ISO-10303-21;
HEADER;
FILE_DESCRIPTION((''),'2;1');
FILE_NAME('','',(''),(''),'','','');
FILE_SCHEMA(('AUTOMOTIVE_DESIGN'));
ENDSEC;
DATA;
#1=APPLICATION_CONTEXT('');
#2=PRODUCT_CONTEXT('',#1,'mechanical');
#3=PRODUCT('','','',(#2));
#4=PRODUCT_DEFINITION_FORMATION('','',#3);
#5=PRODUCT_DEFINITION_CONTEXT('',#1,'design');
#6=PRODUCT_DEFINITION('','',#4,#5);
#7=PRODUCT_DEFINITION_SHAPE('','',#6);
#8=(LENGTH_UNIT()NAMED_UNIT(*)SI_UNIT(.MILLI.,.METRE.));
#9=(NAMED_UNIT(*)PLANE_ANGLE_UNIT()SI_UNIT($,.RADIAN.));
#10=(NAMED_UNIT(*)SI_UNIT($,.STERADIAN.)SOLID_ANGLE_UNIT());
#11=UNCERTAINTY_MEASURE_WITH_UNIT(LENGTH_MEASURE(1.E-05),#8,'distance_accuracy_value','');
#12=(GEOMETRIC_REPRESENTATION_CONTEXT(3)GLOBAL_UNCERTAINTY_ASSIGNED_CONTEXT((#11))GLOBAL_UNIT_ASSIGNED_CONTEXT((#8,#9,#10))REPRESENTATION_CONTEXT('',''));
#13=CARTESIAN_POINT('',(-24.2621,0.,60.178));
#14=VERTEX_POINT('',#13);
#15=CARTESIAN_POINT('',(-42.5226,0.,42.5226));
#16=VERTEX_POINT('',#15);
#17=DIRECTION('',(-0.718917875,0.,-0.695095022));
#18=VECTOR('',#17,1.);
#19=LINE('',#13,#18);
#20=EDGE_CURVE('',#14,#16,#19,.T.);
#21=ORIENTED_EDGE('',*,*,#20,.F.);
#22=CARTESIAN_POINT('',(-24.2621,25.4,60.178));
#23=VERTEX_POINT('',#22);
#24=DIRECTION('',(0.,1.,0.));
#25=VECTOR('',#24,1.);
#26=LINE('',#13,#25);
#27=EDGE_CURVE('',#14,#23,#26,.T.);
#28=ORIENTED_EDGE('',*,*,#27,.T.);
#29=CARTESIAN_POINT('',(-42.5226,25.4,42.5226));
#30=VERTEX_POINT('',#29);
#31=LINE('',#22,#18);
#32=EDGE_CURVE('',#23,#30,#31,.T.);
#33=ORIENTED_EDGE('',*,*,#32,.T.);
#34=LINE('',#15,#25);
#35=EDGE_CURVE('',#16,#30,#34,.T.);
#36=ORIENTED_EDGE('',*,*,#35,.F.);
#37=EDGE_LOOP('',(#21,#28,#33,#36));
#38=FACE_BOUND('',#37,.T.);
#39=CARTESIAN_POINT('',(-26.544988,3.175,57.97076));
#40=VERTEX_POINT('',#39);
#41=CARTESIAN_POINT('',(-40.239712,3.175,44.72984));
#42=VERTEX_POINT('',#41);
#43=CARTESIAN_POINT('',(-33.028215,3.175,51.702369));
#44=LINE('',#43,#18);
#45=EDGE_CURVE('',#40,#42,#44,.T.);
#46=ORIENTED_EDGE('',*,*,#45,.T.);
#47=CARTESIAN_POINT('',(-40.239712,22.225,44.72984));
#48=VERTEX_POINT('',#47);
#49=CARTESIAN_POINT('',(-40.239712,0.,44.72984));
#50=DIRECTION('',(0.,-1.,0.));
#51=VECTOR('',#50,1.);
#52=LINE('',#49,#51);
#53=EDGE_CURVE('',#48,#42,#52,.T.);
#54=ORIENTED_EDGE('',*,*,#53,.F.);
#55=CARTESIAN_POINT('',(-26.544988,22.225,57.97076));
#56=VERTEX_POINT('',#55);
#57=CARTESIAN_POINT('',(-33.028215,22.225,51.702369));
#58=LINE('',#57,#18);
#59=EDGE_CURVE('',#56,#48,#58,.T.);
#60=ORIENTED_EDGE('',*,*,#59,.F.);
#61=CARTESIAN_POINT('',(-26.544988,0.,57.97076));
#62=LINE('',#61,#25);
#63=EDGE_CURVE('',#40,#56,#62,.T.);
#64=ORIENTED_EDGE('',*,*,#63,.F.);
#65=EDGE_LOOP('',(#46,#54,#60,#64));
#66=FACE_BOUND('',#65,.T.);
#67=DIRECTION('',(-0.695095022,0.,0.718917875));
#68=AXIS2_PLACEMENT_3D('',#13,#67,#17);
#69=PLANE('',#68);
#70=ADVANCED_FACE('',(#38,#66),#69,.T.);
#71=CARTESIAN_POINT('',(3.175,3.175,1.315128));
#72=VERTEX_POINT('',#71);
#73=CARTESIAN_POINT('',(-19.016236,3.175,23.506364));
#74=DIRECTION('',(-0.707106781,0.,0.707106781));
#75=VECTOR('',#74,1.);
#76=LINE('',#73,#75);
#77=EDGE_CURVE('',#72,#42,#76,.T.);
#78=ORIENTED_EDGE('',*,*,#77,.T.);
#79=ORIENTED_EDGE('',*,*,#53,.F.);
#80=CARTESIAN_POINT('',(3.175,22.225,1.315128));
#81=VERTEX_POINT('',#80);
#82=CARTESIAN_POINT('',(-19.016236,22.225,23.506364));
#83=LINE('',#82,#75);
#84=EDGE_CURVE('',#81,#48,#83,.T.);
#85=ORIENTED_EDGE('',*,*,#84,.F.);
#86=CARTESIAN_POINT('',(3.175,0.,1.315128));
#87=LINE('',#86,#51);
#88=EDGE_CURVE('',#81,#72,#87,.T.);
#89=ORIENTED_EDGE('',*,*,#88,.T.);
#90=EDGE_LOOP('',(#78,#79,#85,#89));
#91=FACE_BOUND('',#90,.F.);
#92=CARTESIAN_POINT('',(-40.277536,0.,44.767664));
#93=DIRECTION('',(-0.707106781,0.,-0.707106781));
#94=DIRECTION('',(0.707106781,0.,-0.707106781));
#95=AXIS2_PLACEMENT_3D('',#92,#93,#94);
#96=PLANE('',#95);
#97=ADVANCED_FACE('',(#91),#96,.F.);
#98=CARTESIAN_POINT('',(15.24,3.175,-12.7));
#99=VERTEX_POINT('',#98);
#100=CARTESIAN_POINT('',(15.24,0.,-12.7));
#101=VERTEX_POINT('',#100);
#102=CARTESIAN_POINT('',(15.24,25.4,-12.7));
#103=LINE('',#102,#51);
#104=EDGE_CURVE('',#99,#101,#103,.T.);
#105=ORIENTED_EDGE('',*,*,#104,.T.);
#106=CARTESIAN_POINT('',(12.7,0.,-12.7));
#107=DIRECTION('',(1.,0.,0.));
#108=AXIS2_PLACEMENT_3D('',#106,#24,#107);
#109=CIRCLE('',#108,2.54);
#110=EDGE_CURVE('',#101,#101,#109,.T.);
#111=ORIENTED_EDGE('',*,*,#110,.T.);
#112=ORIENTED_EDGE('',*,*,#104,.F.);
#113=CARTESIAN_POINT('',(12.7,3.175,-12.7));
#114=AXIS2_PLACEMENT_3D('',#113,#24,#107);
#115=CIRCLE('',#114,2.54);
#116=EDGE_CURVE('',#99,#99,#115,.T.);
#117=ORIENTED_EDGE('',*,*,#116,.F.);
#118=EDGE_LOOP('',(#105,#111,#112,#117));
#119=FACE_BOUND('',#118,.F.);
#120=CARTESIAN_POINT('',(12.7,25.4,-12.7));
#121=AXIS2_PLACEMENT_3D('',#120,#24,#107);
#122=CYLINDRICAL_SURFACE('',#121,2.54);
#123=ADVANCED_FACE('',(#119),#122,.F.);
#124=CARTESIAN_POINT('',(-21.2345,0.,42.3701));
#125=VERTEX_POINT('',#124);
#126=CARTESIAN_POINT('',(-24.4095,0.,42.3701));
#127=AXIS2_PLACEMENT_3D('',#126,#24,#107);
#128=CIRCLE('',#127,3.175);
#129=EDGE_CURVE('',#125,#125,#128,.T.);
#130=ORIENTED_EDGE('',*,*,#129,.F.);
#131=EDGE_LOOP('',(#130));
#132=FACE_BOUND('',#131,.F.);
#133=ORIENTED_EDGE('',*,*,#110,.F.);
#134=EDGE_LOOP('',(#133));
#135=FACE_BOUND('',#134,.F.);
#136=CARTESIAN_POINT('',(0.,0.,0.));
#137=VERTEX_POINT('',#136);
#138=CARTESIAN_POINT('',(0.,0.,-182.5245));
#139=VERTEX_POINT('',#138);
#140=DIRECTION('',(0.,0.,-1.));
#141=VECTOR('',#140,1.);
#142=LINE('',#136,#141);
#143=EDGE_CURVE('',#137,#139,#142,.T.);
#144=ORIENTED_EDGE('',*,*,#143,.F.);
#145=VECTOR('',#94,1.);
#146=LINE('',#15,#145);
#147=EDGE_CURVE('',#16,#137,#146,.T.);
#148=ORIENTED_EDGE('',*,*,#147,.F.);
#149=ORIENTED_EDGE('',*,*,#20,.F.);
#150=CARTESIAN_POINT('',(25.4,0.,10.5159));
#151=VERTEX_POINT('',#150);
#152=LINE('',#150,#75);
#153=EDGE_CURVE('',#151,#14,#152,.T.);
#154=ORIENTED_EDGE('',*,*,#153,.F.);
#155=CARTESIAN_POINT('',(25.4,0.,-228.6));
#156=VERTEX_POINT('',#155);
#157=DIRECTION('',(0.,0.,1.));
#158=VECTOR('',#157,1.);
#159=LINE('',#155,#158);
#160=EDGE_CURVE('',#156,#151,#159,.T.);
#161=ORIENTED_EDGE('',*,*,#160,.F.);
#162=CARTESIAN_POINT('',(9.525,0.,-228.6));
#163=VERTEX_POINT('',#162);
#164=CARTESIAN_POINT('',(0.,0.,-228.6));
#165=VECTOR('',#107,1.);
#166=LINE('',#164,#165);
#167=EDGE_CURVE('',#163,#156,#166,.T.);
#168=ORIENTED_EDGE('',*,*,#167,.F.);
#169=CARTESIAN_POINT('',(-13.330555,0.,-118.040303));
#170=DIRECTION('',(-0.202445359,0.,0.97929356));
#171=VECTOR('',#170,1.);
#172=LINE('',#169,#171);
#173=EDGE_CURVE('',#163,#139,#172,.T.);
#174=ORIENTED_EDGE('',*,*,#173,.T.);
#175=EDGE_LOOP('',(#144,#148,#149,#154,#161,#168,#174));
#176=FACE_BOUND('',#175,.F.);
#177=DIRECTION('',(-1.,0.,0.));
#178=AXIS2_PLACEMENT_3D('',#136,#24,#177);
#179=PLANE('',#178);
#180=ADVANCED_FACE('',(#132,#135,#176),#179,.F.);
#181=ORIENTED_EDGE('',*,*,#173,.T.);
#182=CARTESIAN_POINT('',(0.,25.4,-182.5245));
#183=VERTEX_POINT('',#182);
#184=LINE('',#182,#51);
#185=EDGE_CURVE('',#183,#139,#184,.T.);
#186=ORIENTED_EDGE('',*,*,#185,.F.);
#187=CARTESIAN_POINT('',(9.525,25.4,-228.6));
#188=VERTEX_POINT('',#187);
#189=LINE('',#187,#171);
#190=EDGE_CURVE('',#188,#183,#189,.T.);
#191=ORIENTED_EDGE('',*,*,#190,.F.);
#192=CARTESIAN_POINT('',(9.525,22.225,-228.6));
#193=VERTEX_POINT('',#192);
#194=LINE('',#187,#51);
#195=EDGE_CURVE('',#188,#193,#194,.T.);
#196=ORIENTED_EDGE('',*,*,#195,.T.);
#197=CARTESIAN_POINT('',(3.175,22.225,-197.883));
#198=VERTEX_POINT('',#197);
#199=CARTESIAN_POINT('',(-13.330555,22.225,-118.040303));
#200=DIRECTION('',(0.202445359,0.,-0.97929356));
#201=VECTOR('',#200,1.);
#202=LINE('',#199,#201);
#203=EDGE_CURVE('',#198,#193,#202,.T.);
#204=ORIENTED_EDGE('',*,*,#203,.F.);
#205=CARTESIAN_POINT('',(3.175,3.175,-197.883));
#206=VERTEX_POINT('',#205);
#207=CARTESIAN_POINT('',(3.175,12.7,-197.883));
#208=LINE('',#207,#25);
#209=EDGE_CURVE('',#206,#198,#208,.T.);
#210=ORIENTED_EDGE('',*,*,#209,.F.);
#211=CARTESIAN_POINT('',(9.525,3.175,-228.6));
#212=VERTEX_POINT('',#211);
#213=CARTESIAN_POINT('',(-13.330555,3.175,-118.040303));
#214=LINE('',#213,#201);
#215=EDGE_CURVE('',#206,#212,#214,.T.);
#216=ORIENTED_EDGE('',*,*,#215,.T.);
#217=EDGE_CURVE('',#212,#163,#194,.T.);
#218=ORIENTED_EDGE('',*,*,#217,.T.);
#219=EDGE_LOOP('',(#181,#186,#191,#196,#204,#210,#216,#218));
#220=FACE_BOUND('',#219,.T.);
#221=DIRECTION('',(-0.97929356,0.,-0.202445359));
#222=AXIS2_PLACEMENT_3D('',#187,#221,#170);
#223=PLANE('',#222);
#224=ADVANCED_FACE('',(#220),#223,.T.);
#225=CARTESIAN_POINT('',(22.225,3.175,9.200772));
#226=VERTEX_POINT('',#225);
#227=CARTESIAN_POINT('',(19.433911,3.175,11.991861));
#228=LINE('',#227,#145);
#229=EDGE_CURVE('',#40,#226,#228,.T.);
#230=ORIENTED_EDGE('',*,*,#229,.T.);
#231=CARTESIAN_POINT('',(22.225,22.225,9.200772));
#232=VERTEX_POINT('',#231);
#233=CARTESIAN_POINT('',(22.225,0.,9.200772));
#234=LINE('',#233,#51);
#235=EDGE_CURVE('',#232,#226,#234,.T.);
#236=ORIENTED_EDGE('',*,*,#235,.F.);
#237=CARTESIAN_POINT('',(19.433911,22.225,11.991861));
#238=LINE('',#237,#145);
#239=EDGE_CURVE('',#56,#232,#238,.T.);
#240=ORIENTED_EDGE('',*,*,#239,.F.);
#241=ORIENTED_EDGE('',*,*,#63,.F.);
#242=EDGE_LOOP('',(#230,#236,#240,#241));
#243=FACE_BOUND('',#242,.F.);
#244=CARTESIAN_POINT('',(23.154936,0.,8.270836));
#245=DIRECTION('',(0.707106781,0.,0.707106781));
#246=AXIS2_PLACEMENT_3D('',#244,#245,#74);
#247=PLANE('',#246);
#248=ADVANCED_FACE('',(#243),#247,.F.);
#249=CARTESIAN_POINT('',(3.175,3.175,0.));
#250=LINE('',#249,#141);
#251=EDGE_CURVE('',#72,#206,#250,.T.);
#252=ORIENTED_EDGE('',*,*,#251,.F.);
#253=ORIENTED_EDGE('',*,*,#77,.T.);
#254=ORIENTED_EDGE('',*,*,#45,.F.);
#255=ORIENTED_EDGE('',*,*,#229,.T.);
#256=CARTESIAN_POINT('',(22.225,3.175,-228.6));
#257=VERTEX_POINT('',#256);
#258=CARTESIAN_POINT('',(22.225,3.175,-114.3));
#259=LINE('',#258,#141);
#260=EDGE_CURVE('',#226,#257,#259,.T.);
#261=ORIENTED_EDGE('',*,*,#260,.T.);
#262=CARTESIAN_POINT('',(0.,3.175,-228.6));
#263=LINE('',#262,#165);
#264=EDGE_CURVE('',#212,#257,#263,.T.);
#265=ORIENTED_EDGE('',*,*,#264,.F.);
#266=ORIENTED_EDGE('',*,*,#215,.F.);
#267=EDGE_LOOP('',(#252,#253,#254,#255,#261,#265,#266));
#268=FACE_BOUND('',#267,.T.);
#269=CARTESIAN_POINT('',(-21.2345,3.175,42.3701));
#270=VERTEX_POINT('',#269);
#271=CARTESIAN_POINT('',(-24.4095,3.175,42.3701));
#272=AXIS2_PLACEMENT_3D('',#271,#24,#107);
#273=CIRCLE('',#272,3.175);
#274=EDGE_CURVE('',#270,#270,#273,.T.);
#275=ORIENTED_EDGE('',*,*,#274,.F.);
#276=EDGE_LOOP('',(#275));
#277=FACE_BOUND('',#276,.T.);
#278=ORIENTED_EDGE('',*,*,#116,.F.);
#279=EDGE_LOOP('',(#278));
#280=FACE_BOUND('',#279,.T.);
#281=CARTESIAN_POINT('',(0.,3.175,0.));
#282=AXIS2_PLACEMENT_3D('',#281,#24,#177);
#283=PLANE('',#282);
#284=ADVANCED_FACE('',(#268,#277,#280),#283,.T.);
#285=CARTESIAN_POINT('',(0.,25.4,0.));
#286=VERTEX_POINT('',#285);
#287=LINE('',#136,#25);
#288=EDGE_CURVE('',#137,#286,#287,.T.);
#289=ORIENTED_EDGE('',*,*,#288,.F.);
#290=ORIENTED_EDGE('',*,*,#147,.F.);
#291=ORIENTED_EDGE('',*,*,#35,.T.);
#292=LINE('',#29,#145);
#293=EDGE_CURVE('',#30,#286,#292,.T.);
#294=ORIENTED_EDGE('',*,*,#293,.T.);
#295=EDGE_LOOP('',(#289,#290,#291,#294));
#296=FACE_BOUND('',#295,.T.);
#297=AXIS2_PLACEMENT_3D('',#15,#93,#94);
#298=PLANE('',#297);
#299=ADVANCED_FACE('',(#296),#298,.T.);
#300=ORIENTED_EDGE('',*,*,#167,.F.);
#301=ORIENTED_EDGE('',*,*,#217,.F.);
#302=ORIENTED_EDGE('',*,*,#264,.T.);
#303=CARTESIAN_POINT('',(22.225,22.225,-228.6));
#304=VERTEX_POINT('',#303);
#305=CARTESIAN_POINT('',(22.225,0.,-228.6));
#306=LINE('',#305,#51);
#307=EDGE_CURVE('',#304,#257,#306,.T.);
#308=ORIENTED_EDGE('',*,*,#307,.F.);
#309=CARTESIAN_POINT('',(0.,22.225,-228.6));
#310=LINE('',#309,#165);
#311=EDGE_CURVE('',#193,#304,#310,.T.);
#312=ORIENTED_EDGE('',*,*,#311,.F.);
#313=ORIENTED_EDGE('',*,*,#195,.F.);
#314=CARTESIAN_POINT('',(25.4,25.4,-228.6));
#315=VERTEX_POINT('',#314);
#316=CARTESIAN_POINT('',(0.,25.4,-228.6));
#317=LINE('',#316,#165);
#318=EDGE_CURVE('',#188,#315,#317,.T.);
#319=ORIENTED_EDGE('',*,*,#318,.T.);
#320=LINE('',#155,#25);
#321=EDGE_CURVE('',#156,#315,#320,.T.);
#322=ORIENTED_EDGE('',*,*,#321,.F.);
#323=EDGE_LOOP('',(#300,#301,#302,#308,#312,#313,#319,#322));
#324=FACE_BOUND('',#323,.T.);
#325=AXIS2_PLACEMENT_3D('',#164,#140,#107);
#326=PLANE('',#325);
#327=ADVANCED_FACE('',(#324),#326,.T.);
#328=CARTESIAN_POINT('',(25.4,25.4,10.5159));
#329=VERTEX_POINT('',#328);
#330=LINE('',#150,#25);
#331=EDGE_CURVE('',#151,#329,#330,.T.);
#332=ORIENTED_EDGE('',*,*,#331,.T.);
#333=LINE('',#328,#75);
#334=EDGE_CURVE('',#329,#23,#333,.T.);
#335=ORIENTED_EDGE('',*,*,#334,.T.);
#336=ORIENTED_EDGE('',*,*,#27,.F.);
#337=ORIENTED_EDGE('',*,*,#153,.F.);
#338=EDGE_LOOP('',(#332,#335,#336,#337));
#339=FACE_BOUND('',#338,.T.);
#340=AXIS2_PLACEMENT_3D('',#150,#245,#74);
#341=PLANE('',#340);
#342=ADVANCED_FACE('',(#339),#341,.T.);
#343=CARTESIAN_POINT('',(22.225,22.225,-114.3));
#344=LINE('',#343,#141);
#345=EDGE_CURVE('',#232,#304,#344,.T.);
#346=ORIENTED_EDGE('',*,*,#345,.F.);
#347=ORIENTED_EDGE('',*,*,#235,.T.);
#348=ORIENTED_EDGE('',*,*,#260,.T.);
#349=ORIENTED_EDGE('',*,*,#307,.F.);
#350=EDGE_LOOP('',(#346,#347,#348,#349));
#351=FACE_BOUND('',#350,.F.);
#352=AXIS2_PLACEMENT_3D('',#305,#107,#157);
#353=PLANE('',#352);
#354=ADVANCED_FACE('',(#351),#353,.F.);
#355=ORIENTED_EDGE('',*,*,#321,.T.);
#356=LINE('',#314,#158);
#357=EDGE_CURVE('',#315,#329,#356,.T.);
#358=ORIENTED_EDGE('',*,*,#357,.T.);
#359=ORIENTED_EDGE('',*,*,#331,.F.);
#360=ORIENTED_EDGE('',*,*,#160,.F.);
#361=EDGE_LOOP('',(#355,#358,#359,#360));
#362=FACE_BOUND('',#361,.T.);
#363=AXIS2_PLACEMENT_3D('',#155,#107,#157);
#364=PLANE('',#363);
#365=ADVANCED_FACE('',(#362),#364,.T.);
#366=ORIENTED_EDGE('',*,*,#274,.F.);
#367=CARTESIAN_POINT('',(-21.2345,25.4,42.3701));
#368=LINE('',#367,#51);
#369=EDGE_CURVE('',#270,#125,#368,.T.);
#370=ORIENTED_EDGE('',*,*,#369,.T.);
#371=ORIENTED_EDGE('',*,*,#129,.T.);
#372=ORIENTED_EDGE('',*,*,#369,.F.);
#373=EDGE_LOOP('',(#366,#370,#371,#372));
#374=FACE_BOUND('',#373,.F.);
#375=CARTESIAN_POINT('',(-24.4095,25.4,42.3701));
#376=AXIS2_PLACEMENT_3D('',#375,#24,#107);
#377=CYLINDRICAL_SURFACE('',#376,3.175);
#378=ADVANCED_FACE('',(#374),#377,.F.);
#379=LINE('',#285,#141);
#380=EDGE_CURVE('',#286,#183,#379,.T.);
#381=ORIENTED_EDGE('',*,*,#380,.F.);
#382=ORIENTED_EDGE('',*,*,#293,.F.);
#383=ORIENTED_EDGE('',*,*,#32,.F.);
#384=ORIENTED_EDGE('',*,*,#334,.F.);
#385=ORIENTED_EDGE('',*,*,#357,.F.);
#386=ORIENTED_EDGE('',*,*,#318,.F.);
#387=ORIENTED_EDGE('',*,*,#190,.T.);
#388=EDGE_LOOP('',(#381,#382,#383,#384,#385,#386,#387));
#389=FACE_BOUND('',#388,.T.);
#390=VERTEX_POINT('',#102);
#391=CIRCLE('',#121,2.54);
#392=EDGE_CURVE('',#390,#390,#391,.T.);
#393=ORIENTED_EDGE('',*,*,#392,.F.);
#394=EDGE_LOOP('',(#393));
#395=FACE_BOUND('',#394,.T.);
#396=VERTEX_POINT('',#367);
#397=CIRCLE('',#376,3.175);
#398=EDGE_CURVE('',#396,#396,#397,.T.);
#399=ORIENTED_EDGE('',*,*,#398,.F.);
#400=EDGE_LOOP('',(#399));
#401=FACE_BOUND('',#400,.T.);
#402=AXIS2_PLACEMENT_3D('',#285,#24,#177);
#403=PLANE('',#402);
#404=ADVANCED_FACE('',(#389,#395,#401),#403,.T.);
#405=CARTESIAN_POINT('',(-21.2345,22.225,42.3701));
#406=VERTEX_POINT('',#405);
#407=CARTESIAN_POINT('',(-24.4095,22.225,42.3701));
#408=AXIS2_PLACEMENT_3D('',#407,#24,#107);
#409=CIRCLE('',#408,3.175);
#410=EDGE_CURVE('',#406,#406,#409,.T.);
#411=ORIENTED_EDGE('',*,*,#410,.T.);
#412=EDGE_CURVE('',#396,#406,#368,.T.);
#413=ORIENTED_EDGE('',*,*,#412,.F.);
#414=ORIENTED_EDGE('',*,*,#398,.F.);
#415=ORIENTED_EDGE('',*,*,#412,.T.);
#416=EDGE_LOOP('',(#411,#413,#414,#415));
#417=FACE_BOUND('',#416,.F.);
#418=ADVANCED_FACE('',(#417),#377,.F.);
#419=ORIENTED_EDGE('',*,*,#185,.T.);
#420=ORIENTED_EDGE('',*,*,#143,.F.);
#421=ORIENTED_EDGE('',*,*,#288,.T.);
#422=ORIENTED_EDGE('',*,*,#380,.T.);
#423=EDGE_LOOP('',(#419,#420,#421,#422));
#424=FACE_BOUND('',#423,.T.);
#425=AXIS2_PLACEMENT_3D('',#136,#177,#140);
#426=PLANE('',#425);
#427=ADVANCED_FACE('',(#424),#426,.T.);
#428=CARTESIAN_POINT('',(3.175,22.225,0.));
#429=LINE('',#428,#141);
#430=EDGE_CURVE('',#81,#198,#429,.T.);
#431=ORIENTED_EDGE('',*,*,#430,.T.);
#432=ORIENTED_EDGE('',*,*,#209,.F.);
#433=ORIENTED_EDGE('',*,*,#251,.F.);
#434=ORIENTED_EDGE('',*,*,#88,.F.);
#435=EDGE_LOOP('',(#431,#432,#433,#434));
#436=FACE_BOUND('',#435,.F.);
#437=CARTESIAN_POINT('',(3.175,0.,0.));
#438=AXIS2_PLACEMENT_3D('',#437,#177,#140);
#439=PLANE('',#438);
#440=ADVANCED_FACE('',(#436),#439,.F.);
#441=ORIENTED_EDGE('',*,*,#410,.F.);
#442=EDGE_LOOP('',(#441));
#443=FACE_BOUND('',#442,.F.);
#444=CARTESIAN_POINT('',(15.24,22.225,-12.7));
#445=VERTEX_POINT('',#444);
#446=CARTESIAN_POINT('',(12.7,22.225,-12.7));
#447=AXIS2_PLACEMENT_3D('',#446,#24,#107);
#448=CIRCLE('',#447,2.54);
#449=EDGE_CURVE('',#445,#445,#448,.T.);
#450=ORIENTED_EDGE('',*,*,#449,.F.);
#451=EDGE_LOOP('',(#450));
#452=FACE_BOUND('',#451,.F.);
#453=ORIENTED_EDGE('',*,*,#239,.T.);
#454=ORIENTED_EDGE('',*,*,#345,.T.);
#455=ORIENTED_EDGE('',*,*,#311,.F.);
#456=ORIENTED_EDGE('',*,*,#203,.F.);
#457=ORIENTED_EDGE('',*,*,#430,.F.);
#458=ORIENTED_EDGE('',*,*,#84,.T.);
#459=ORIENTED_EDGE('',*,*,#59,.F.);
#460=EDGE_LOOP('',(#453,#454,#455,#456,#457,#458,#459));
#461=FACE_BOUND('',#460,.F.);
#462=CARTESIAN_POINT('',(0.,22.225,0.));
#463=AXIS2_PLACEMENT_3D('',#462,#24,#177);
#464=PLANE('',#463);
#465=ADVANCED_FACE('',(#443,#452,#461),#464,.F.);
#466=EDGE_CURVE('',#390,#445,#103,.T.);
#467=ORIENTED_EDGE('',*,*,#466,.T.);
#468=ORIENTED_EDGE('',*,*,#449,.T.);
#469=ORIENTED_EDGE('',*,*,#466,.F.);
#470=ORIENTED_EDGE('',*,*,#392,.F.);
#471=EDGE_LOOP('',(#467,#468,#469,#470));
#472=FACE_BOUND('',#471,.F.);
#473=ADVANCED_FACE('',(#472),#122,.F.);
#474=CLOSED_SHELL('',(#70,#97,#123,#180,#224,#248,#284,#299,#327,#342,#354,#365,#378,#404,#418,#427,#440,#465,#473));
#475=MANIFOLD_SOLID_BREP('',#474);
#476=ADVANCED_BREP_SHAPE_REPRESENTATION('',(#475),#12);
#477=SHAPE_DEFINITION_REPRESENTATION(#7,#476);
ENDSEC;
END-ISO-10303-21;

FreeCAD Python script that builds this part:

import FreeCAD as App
import Part
import Sketcher
from FreeCAD import Vector
Q = App.Units.Quantity


def faces_at(feature, points):
    """Names of the faces that lie closest to the given points."""
    faces = feature.Shape.Faces
    near = lambda p: min(range(len(faces)), key=lambda i: faces[i].distToShape(Part.Vertex(*p))[0])
    return sorted({f"Face{near(p) + 1}" for p in points})


def add_polygon(sketch, points):
    """Adds a closed chain of lines whose ends are joined by coincident constraints."""
    first, n = sketch.GeometryCount, len(points)
    for a, b in zip(points, points[1:] + points[:1]):
        sketch.addGeometry(Part.LineSegment(App.Vector(*a, 0), App.Vector(*b, 0)), False)
    for i in range(n):
        sketch.addConstraint(Sketcher.Constraint("Coincident", first + i, 2, first + (i + 1) % n, 1))

doc = App.newDocument("Part")
body = doc.addObject("PartDesign::Body", "Body")

# Sketch on XZ plane
sketch1 = doc.addObject("Sketcher::SketchObject", "Sketch")
body.addObject(sketch1)
sketch1.AttachmentSupport = (doc.XZ_Plane, [""])
sketch1.MapMode = "FlatFace"
add_polygon(sketch1, [(0, -228.6), (0, 0), (-42.5226, 42.5226), (-24.2621, 60.178), (25.4, 10.5159), (25.4, -228.6)])  # lines 0-5
sketch1.addConstraint(Sketcher.Constraint("Vertical", 0))
sketch1.addConstraint(Sketcher.Constraint("Vertical", 4))
sketch1.addConstraint(Sketcher.Constraint("Horizontal", 5))
sketch1.addConstraint(Sketcher.Constraint("Coincident", 0, 2, -1, 1))
sketch1.addConstraint(Sketcher.Constraint("DistanceX", 5, 2, 5, 1, Q("1 in")))
sketch1.addConstraint(Sketcher.Constraint("DistanceY", 0, 1, 0, 2, Q("9 in")))
sketch1.addConstraint(Sketcher.Constraint("Distance", 2, Q("1 in")))
sketch1.addConstraint(Sketcher.Constraint("DistanceY", 4, 2, 4, 1, Q("9.414 in")))
sketch1.addConstraint(Sketcher.Constraint("DistanceX", 2, 2, -1, 1, Q("0.9552 in")))
sketch1.addConstraint(Sketcher.Constraint("DistanceY", 1, 2, 2, 2, Q("0.6951 in")))
sketch1.addConstraint(Sketcher.Constraint("DistanceY", 3, 2, 2, 2, Q("1.9552 in")))
pad1 = doc.addObject("PartDesign::Pad", "Pad")
body.addObject(pad1)
pad1.Profile = sketch1
pad1.Length = Q("1 in")
pad1.Reversed = True

# Sketch on XZ plane
sketch2 = doc.addObject("Sketcher::SketchObject", "Sketch001")
body.addObject(sketch2)
sketch2.AttachmentSupport = (doc.XZ_Plane, [""])
sketch2.MapMode = "FlatFace"
sketch2.AttachmentOffset = App.Placement(Vector(0, 0, -1 * 25.4), App.Rotation())
add_polygon(sketch2, [(0, -182.5245), (9.525, -228.6), (0, -228.6)])  # lines 0-2
sketch2.addConstraint(Sketcher.Constraint("Horizontal", 1))
sketch2.addConstraint(Sketcher.Constraint("Vertical", 2))
sketch2.addConstraint(Sketcher.Constraint("PointOnObject", 1, 2, -2))
sketch2.addConstraint(Sketcher.Constraint("DistanceX", 1, 2, 1, 1, Q("0.375 in")))
sketch2.addConstraint(Sketcher.Constraint("DistanceY", 0, 2, -1, 1, Q("9 in")))
sketch2.addConstraint(Sketcher.Constraint("DistanceY", 2, 1, 2, 2, Q("1.814 in")))
pocket1 = doc.addObject("PartDesign::Pocket", "Pocket")
body.addObject(pocket1)
pocket1.Profile = sketch2
pocket1.Type = "ThroughAll"
pocket1.Reversed = True
doc.recompute()

thickness = doc.addObject("PartDesign::Thickness", "Thickness")
body.addObject(thickness)
thickness.Base = (pocket1, faces_at(pocket1, [(3.175, 16.933, -197.883), (14.817, 8.467, -228.6), (-30.349, 8.467, 54.293)]))
thickness.Value = Q("0.125 in")
thickness.Reversed = True
thickness.Join = "Intersection"

# Sketch on XZ plane
sketch3 = doc.addObject("Sketcher::SketchObject", "Sketch002")
body.addObject(sketch3)
sketch3.AttachmentSupport = (doc.XZ_Plane, [""])
sketch3.MapMode = "FlatFace"
sketch3.AttachmentOffset = App.Placement(Vector(0, 0, -1 * 25.4), App.Rotation())
sketch3.addGeometry(Part.Circle(Vector(-24.4095, 42.3701, 0), Vector(0, 0, 1), 3.175), False)
sketch3.addGeometry(Part.Circle(Vector(12.7, -12.7, 0), Vector(0, 0, 1), 2.54), False)
sketch3.addConstraint(Sketcher.Constraint("Diameter", 1, Q("0.2 in")))
sketch3.addConstraint(Sketcher.Constraint("Diameter", 0, Q("0.25 in")))
sketch3.addConstraint(Sketcher.Constraint("DistanceX", -1, 1, 1, 3, Q("0.5 in")))
sketch3.addConstraint(Sketcher.Constraint("DistanceY", 1, 3, -1, 1, Q("0.5 in")))
sketch3.addConstraint(Sketcher.Constraint("DistanceX", 0, 3, -1, 1, Q("0.961 in")))
sketch3.addConstraint(Sketcher.Constraint("DistanceY", -1, 1, 0, 3, Q("1.6681102 in")))
pocket2 = doc.addObject("PartDesign::Pocket", "Pocket001")
body.addObject(pocket2)
pocket2.Profile = sketch3
pocket2.Type = "ThroughAll"
pocket2.Reversed = True

doc.recompute()
